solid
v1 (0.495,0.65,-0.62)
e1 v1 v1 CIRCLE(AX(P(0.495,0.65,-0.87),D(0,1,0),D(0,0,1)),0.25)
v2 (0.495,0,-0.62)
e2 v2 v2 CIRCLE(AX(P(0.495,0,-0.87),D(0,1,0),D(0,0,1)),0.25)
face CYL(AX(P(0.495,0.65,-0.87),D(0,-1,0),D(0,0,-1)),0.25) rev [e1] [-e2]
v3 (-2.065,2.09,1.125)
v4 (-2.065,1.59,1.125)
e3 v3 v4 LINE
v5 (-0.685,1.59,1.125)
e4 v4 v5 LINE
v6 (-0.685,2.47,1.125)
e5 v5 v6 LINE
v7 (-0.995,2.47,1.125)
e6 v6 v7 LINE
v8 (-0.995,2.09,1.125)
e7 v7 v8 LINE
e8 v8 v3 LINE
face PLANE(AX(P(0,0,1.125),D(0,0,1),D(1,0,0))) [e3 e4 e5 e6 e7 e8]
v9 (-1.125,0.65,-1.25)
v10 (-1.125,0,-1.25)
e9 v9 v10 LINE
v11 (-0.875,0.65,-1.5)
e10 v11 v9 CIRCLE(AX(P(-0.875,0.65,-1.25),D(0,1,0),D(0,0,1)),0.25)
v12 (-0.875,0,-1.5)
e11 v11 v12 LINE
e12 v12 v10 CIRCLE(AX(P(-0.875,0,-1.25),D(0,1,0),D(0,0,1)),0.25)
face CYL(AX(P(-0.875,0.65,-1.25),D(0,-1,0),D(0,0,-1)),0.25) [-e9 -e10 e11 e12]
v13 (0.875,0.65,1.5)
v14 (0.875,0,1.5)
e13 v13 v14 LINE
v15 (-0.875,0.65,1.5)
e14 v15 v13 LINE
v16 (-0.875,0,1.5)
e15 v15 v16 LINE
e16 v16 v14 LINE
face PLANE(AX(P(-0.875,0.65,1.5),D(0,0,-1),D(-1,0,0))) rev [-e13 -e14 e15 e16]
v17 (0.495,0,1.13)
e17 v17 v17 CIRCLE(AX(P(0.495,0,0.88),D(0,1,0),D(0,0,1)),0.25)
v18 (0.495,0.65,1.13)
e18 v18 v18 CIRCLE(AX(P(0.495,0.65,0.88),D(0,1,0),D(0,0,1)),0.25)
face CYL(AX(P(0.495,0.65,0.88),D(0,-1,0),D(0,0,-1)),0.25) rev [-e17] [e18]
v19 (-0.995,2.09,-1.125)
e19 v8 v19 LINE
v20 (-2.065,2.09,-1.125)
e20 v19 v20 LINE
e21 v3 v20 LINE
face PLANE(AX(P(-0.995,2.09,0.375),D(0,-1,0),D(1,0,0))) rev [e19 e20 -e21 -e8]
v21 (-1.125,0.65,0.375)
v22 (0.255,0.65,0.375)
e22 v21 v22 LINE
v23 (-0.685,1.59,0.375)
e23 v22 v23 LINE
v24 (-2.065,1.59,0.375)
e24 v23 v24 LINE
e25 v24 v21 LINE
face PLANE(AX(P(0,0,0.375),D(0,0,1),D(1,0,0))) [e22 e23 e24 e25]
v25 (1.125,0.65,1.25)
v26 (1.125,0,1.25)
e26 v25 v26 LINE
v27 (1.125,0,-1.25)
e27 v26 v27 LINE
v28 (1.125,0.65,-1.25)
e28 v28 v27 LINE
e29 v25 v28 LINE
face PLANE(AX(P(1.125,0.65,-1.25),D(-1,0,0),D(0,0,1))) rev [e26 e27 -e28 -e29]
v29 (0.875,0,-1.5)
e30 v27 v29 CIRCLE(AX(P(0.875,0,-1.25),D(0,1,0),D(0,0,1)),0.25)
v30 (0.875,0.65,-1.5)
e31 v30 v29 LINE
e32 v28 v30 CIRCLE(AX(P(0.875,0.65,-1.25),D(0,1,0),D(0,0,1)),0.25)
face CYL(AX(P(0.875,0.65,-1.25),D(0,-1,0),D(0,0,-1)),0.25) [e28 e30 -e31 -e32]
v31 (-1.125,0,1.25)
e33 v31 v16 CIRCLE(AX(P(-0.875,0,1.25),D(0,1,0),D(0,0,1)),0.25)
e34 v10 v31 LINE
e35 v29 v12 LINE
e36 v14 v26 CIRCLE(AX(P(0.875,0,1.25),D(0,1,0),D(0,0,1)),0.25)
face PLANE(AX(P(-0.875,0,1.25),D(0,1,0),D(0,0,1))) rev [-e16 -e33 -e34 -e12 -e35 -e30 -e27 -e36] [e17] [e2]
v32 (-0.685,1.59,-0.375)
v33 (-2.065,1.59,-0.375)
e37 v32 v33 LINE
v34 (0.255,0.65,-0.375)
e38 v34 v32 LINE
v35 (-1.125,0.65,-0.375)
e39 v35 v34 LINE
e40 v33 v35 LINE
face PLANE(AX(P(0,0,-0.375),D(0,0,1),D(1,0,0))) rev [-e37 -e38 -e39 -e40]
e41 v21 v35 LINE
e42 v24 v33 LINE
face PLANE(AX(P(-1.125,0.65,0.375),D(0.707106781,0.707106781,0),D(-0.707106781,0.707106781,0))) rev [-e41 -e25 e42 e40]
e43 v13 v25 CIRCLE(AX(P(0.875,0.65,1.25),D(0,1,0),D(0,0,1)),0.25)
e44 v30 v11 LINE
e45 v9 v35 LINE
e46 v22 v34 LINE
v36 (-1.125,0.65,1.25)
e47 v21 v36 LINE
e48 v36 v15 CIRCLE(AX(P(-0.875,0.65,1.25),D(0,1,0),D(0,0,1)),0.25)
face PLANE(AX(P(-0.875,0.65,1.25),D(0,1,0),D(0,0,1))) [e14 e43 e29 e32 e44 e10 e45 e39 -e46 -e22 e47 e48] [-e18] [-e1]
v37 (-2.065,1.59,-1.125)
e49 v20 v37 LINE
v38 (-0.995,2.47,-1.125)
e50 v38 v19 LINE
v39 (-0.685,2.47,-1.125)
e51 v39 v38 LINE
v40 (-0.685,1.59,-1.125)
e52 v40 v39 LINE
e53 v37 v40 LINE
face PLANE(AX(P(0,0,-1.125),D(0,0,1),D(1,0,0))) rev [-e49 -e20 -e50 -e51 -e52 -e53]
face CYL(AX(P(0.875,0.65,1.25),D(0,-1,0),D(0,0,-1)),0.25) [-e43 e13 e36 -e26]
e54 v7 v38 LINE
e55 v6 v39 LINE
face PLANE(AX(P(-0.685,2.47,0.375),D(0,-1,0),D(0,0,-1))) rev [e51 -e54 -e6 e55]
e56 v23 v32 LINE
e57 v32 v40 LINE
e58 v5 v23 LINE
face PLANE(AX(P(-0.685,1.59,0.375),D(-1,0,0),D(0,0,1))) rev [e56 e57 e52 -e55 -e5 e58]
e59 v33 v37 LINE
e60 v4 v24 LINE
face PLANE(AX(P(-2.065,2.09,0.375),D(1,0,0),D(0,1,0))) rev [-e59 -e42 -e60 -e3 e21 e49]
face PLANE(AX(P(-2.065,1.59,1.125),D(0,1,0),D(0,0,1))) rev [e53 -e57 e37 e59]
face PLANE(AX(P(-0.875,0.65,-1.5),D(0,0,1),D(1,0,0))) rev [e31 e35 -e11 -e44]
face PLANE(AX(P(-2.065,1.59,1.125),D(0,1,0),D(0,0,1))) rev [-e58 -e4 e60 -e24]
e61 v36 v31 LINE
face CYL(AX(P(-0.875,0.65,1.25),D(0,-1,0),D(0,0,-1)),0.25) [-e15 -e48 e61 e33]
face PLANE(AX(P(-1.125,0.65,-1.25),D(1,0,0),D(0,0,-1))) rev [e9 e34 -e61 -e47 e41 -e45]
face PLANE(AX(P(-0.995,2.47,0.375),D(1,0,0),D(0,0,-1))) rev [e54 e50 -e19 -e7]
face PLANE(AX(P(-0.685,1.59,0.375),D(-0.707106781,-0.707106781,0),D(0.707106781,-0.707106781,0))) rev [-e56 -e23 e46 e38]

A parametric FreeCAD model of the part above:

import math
import FreeCAD as App
import Part
import Sketcher
from FreeCAD import Vector
Q = App.Units.Quantity


def add_polygon(sketch, points):
    """Adds a closed chain of lines whose ends are joined by coincident constraints."""
    first, n = sketch.GeometryCount, len(points)
    for a, b in zip(points, points[1:] + points[:1]):
        sketch.addGeometry(Part.LineSegment(App.Vector(*a, 0), App.Vector(*b, 0)), False)
    for i in range(n):
        sketch.addConstraint(Sketcher.Constraint("Coincident", first + i, 2, first + (i + 1) % n, 1))

doc = App.newDocument("Part")
params = doc.addObject("Spreadsheet::Sheet", "Params")
for row, (alias, value) in enumerate([
    ("sketch1_diameter", "0.5 mm"),
    ("sketch1_height", "2.5 mm"),
    ("pad1_length", "0.65 mm"),
    ("sketch2_height", "0.5 mm"),
    ("sketch2_width", "1.38 mm"),
    ("sketch2_width2", "0.31 mm"),
    ("sketch2_height2", "0.88 mm"),
    ("pad2_length", "0.75 mm"),
    ("sketch3_height", "0.5 mm"),
    ("sketch3_width", "1.38 mm"),
    ("sketch3_width2", "0.31 mm"),
    ("sketch3_height2", "0.88 mm"),
    ("pad3_length", "2.25 mm"),
], start=1):
    params.set(f"A{row}", alias)
    params.set(f"B{row}", "=" + value)
    params.setAlias(f"B{row}", alias)

body = doc.addObject("PartDesign::Body", "Body")

# Sketch on XZ plane
sketch1 = body.newObject("Sketcher::SketchObject", "Sketch")
sketch1.AttachmentSupport = (doc.getObject("XZ_Plane"), [""])
sketch1.MapMode = "FlatFace"
sketch1.addGeometry([
    Part.LineSegment(Vector(0.88, -1.5, 0), Vector(-0.88, -1.5, 0)),  # 0
    Part.ArcOfCircle(Part.Circle(Vector(-0.87, -1.25, 0), Vector(0, 0, 1), 0.25), math.radians(-180), math.radians(-90)),  # 1
    Part.LineSegment(Vector(-1.12, -1.25, 0), Vector(-1.12, 1.25, 0)),  # 2
    Part.ArcOfCircle(Part.Circle(Vector(-0.87, 1.25, 0), Vector(0, 0, 1), 0.25), math.radians(90), math.radians(180)),  # 3
    Part.LineSegment(Vector(-0.88, 1.5, 0), Vector(0.88, 1.5, 0)),  # 4
    Part.ArcOfCircle(Part.Circle(Vector(0.87, 1.25, 0), Vector(0, 0, 1), 0.25), math.radians(0), math.radians(90)),  # 5
    Part.LineSegment(Vector(1.12, 1.25, 0), Vector(1.12, -1.25, 0)),  # 6
    Part.ArcOfCircle(Part.Circle(Vector(0.87, -1.25, 0), Vector(0, 0, 1), 0.25), math.radians(-90), math.radians(0)),  # 7
    Part.Circle(Vector(0.49, 0.88, 0), Vector(0, 0, 1), 0.25),  # 8
    Part.Circle(Vector(0.49, -0.87, 0), Vector(0, 0, 1), 0.25),  # 9
], False)
sketch1.addConstraint([
    Sketcher.Constraint("Tangent", 0, 2, 1, 2),
    Sketcher.Constraint("Tangent", 1, 1, 2, 1),
    Sketcher.Constraint("Tangent", 2, 2, 3, 2),
    Sketcher.Constraint("Tangent", 3, 1, 4, 1),
    Sketcher.Constraint("Tangent", 4, 2, 5, 2),
    Sketcher.Constraint("Tangent", 5, 1, 6, 1),
    Sketcher.Constraint("Tangent", 6, 2, 7, 2),
    Sketcher.Constraint("Tangent", 7, 1, 0, 1),
    Sketcher.Constraint("Horizontal", 0),
    Sketcher.Constraint("Vertical", 2),
    Sketcher.Constraint("Horizontal", 4),
    Sketcher.Constraint("Vertical", 6),
    Sketcher.Constraint("Equal", 1, 3),
    Sketcher.Constraint("Equal", 3, 5),
    Sketcher.Constraint("Equal", 5, 7),
    Sketcher.Constraint("Equal", 7, 8),
    Sketcher.Constraint("Equal", 8, 9),
    Sketcher.Constraint("Symmetric", 1, 3, 5, 3, -1, 1),
    Sketcher.Constraint("Vertical", 8, 3, 9, 3),
    Sketcher.Constraint("Diameter", 8, Q("0.5 mm")),
    Sketcher.Constraint("DistanceY", 2, 1, 2, 2, Q("2.5 mm")),
    Sketcher.Constraint("DistanceX", 1, 1, 7, 3, Q("2 mm")),
    Sketcher.Constraint("DistanceY", -1, 1, 8, 3, Q("0.88 mm")),
    Sketcher.Constraint("DistanceY", 9, 3, -1, 1, Q("0.87 mm")),
    Sketcher.Constraint("DistanceX", 8, 3, 5, 3, Q("0.38 mm")),
])
sketch1.setExpression("Constraints[19]", "Params.sketch1_diameter")
sketch1.setExpression("Constraints[20]", "Params.sketch1_height")
pad1 = body.newObject("PartDesign::Pad", "Pad")
pad1.Profile = sketch1
pad1.setExpression("Length", "Params.pad1_length")
pad1.Reversed = True

# Sketch on XY plane
sketch2 = body.newObject("Sketcher::SketchObject", "Sketch001")
sketch2.AttachmentSupport = (doc.getObject("XY_Plane"), [""])
sketch2.MapMode = "FlatFace"
add_polygon(sketch2, [(-2.06, 1.59), (-1.12, 0.65), (0.26, 0.65), (-0.69, 1.59), (-0.69, 2.47), (-0.99, 2.47), (-0.99, 2.09), (-2.06, 2.09)])  # lines 0-7
sketch2.addConstraint([
    Sketcher.Constraint("Horizontal", 1),
    Sketcher.Constraint("Vertical", 3),
    Sketcher.Constraint("Horizontal", 4),
    Sketcher.Constraint("Vertical", 5),
    Sketcher.Constraint("Horizontal", 6),
    Sketcher.Constraint("Vertical", 7),
    Sketcher.Constraint("Parallel", 0, 2),
    Sketcher.Constraint("Horizontal", 2, 2, 7, 2),
    Sketcher.Constraint("Angle", 0, Q("-45 deg")),
    Sketcher.Constraint("DistanceY", 7, 2, 7, 1, Q("0.5 mm")),
    Sketcher.Constraint("DistanceX", 1, 1, 1, 2, Q("1.38 mm")),
    Sketcher.Constraint("DistanceX", 4, 2, 4, 1, Q("0.31 mm")),
    Sketcher.Constraint("DistanceY", 3, 1, 3, 2, Q("0.88 mm")),
    Sketcher.Constraint("DistanceY", -1, 1, 0, 2, Q("0.65 mm")),
    Sketcher.Constraint("DistanceY", -1, 1, 2, 2, Q("1.59 mm")),
    Sketcher.Constraint("DistanceX", 0, 2, -1, 1, Q("1.125 mm")),
])
sketch2.setExpression("Constraints[17]", "Params.sketch2_height")
sketch2.setExpression("Constraints[18]", "Params.sketch2_width")
sketch2.setExpression("Constraints[19]", "Params.sketch2_width2")
sketch2.setExpression("Constraints[20]", "Params.sketch2_height2")
pad2 = body.newObject("PartDesign::Pad", "Pad001")
pad2.Profile = sketch2
pad2.setExpression("Length", "Params.pad2_length")
pad2.Midplane = True

# Sketch on XY plane
sketch3 = body.newObject("Sketcher::SketchObject", "Sketch002")
sketch3.AttachmentSupport = (doc.getObject("XY_Plane"), [""])
sketch3.MapMode = "FlatFace"
add_polygon(sketch3, [(-2.06, 1.59), (-0.69, 1.59), (-0.69, 2.47), (-0.99, 2.47), (-0.99, 2.09), (-2.06, 2.09)])  # lines 0-5
sketch3.addConstraint([
    Sketcher.Constraint("Horizontal", 0),
    Sketcher.Constraint("Vertical", 1),
    Sketcher.Constraint("Horizontal", 2),
    Sketcher.Constraint("Vertical", 3),
    Sketcher.Constraint("Horizontal", 4),
    Sketcher.Constraint("Vertical", 5),
    Sketcher.Constraint("DistanceY", 5, 2, 5, 1, Q("0.5 mm")),
    Sketcher.Constraint("DistanceX", 0, 1, 0, 2, Q("1.38 mm")),
    Sketcher.Constraint("DistanceX", 2, 2, 2, 1, Q("0.31 mm")),
    Sketcher.Constraint("DistanceY", 1, 1, 1, 2, Q("0.88 mm")),
    Sketcher.Constraint("DistanceY", -1, 1, 0, 2, Q("1.59 mm")),
    Sketcher.Constraint("DistanceX", 0, 2, -1, 1, Q("0.685 mm")),
])
sketch3.setExpression("Constraints[12]", "Params.sketch3_height")
sketch3.setExpression("Constraints[13]", "Params.sketch3_width")
sketch3.setExpression("Constraints[14]", "Params.sketch3_width2")
sketch3.setExpression("Constraints[15]", "Params.sketch3_height2")
pad3 = body.newObject("PartDesign::Pad", "Pad002")
pad3.Profile = sketch3
pad3.setExpression("Length", "Params.pad3_length")
pad3.Midplane = True

doc.recompute()
